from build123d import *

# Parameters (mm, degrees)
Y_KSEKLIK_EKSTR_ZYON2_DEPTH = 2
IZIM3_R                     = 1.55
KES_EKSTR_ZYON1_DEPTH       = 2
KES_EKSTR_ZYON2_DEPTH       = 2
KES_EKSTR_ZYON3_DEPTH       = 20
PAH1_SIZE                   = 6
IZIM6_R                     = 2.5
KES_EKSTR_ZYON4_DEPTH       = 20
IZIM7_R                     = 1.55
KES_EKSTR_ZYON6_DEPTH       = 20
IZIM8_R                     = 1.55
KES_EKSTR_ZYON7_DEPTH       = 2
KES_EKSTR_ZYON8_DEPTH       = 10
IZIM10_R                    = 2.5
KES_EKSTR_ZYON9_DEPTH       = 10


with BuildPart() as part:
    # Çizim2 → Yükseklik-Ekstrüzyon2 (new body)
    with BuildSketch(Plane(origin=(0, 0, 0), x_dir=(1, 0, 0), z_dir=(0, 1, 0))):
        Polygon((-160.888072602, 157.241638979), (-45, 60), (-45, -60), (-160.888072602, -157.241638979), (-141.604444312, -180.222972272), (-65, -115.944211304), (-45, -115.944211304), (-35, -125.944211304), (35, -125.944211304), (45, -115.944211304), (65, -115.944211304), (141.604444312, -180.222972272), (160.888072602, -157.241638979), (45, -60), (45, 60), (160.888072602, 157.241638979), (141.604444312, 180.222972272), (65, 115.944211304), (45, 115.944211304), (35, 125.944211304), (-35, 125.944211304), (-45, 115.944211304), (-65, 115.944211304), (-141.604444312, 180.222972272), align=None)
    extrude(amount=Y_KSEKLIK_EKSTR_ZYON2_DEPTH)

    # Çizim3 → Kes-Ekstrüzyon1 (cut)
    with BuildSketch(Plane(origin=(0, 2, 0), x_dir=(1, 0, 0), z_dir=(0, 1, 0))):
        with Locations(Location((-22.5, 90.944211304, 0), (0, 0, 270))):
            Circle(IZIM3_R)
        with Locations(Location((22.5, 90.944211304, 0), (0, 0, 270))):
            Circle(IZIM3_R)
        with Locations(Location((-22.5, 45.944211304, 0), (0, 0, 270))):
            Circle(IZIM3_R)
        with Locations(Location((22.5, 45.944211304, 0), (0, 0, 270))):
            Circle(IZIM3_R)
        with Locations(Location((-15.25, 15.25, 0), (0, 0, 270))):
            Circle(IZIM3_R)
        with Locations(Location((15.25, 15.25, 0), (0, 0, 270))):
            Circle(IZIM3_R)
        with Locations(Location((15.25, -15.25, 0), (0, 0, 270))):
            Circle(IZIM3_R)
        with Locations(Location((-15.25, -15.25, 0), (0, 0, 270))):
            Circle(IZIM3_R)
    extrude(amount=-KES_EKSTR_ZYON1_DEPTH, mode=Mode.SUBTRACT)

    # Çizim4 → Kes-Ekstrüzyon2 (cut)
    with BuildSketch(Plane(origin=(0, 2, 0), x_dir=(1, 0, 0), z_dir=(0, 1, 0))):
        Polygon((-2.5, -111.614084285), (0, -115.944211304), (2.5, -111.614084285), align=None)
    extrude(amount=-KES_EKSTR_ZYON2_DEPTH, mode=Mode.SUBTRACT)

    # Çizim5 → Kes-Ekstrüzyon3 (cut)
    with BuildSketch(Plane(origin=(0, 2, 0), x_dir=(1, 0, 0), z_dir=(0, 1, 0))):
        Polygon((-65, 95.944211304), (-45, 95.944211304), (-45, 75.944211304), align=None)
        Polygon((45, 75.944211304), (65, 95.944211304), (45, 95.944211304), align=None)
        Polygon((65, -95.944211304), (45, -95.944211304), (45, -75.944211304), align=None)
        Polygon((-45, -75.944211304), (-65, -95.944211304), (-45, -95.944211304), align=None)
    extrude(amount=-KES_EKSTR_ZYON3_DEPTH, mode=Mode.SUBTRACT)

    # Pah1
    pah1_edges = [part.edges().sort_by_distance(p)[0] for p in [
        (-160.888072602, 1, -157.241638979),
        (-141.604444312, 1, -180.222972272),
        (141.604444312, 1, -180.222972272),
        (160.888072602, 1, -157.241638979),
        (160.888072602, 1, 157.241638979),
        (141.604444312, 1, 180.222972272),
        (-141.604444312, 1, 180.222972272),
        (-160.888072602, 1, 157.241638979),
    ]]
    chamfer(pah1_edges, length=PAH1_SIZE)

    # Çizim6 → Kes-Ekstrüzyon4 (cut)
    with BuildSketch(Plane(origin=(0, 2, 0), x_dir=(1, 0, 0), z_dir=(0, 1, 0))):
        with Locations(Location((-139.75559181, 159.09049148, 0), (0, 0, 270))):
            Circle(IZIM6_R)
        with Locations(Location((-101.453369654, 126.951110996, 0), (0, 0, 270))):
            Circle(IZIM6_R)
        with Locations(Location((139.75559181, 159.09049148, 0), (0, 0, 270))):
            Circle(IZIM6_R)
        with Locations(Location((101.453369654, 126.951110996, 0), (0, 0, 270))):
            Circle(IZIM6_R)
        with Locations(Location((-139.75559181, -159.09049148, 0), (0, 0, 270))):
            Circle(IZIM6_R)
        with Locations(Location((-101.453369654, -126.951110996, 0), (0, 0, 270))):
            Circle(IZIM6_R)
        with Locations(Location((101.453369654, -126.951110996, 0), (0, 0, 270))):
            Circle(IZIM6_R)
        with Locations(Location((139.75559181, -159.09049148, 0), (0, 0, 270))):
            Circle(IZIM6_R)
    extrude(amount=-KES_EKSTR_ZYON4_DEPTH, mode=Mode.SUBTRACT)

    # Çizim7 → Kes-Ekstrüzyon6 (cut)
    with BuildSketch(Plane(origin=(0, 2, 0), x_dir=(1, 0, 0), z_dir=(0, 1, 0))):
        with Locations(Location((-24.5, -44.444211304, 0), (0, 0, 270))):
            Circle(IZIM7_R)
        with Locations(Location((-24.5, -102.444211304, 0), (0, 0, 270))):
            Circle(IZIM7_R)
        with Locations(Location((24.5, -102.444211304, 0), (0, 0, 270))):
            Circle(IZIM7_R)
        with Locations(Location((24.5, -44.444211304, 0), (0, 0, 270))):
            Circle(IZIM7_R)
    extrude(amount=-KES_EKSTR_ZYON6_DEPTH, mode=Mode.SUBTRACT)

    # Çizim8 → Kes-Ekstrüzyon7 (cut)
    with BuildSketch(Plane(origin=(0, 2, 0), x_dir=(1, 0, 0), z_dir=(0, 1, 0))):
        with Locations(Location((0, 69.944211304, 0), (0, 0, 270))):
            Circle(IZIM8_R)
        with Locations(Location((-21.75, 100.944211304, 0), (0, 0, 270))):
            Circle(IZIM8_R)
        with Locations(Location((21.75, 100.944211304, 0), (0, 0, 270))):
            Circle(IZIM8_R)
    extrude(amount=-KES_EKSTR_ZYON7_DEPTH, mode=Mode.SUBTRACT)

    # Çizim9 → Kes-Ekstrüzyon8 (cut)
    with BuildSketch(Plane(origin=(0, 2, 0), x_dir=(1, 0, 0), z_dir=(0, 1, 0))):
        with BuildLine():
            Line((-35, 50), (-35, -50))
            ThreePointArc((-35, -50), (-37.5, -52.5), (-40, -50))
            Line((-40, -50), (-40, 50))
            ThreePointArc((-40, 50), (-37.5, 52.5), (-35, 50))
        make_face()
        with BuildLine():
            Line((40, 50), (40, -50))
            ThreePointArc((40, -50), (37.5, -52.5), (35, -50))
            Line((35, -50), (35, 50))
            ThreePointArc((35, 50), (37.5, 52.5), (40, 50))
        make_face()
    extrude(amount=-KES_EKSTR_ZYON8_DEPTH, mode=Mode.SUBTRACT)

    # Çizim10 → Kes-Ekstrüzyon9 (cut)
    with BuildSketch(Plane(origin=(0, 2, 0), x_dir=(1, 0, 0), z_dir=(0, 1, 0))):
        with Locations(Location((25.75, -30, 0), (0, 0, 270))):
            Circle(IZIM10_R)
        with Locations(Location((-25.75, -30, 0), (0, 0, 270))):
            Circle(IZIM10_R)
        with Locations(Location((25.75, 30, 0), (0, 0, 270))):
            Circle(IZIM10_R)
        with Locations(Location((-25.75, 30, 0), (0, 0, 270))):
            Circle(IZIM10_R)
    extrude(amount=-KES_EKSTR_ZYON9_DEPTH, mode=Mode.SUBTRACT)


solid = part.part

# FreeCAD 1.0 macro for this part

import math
import FreeCAD as App
import Part
import Sketcher
from FreeCAD import Vector
Q = App.Units.Quantity


def edges_at(feature, points):
    """Names of the edges that pass closest to the given points."""
    edges = feature.Shape.Edges
    near = lambda p: min(range(len(edges)), key=lambda i: edges[i].distToShape(Part.Vertex(*p))[0])
    return sorted({f"Edge{near(p) + 1}" for p in points})


def add_polygon(sketch, points):
    """Adds a closed chain of lines whose ends are joined by coincident constraints."""
    first, n = sketch.GeometryCount, len(points)
    for a, b in zip(points, points[1:] + points[:1]):
        sketch.addGeometry(Part.LineSegment(App.Vector(*a, 0), App.Vector(*b, 0)), False)
    for i in range(n):
        sketch.addConstraint(Sketcher.Constraint("Coincident", first + i, 2, first + (i + 1) % n, 1))

doc = App.newDocument("Part")
body = doc.addObject("PartDesign::Body", "Body")

# Sketch on XZ plane
sketch1 = doc.addObject("Sketcher::SketchObject", "Sketch")
body.addObject(sketch1)
sketch1.AttachmentSupport = (doc.XZ_Plane, [""])
sketch1.MapMode = "FlatFace"
add_polygon(sketch1, [(-161, -157), (-45, -60), (-45, 60), (-161, 157), (-142, 180), (-65, 116), (-45, 116), (-35, 126), (35, 126), (45, 116), (65, 116), (142, 180), (161, 157), (45, 60), (45, -60), (161, -157), (142, -180), (65, -116), (45, -116), (35, -126), (-35, -126), (-45, -116), (-65, -116), (-142, -180)])  # lines 0-23
sketch1.addConstraint([
    Sketcher.Constraint("Vertical", 1),
    Sketcher.Constraint("Horizontal", 5),
    Sketcher.Constraint("Horizontal", 7),
    Sketcher.Constraint("Horizontal", 9),
    Sketcher.Constraint("Vertical", 13),
    Sketcher.Constraint("Horizontal", 17),
    Sketcher.Constraint("Horizontal", 19),
    Sketcher.Constraint("Horizontal", 21),
    Sketcher.Constraint("Symmetric", 0, 2, 12, 2, -1, 1),
    Sketcher.Constraint("Symmetric", 2, 2, 14, 2, -1, 1),
    Sketcher.Constraint("Symmetric", 3, 2, 15, 2, -1, 1),
    Sketcher.Constraint("Symmetric", 4, 2, 16, 2, -1, 1),
    Sketcher.Constraint("Symmetric", 6, 2, 18, 2, -1, 1),
    Sketcher.Constraint("Symmetric", 8, 2, 20, 2, -1, 1),
    Sketcher.Constraint("Symmetric", 10, 2, 22, 2, -1, 1),
    Sketcher.Constraint("Symmetric", 11, 2, 23, 2, -1, 1),
    Sketcher.Constraint("Symmetric", 5, 2, 8, 2, -2),
    Sketcher.Constraint("Symmetric", 3, 2, 10, 2, -2),
    Sketcher.Constraint("Symmetric", 2, 2, 11, 2, -2),
    Sketcher.Constraint("Perpendicular", 2, 3),
    Sketcher.Constraint("Perpendicular", 3, 4),
    Sketcher.Constraint("Perpendicular", 6, 8),
    Sketcher.Constraint("Parallel", 0, 10),
    Sketcher.Constraint("Perpendicular", 10, 11),
    Sketcher.Constraint("Parallel", 4, 14),
    Sketcher.Constraint("Perpendicular", 8, 18),
    Sketcher.Constraint("Perpendicular", 18, 20),
    Sketcher.Constraint("Parallel", 12, 22),
    Sketcher.Constraint("Vertical", 1, 2, 5, 2),
    Sketcher.Constraint("Vertical", 7, 2, 18, 2),
    Sketcher.Constraint("DistanceX", 5, 1, 5, 2, 20.0),
    Sketcher.Constraint("DistanceX", 7, 1, 7, 2, 70.0),
    Sketcher.Constraint("DistanceY", 1, 1, 1, 2, 120.0),
    Sketcher.Constraint("Angle", 0, Q("40 deg")),
    Sketcher.Constraint("Distance", 3, 30.0),
    Sketcher.Constraint("Distance", 4, 100.0),
    Sketcher.Constraint("DistanceX", 0, 2, -1, 1, 45.0),
])
pad1 = doc.addObject("PartDesign::Pad", "Pad")
body.addObject(pad1)
pad1.Profile = sketch1
pad1.Length = 2
pad1.Reversed = True

# Sketch on XZ plane
sketch2 = doc.addObject("Sketcher::SketchObject", "Sketch001")
body.addObject(sketch2)
sketch2.AttachmentSupport = (doc.XZ_Plane, [""])
sketch2.MapMode = "FlatFace"
sketch2.AttachmentOffset = App.Placement(Vector(0, 0, -2), App.Rotation())
sketch2.addGeometry([
    Part.Circle(Vector(-22.5, -90.9, 0), Vector(0, 0, 1), 1.6),  # 0
    Part.Circle(Vector(22.5, -90.9, 0), Vector(0, 0, 1), 1.6),  # 1
    Part.Circle(Vector(-22.5, -45.9, 0), Vector(0, 0, 1), 1.6),  # 2
    Part.Circle(Vector(22.5, -45.9, 0), Vector(0, 0, 1), 1.6),  # 3
    Part.Circle(Vector(-15.2, -15.2, 0), Vector(0, 0, 1), 1.6),  # 4
    Part.Circle(Vector(15.2, -15.2, 0), Vector(0, 0, 1), 1.6),  # 5
    Part.Circle(Vector(15.2, 15.2, 0), Vector(0, 0, 1), 1.6),  # 6
    Part.Circle(Vector(-15.2, 15.2, 0), Vector(0, 0, 1), 1.6),  # 7
], False)
sketch2.addConstraint([
    Sketcher.Constraint("Equal", 0, 1),
    Sketcher.Constraint("Equal", 1, 2),
    Sketcher.Constraint("Equal", 2, 3),
    Sketcher.Constraint("Equal", 3, 4),
    Sketcher.Constraint("Equal", 4, 5),
    Sketcher.Constraint("Equal", 5, 6),
    Sketcher.Constraint("Equal", 6, 7),
    Sketcher.Constraint("Symmetric", 4, 3, 6, 3, -1, 1),
    Sketcher.Constraint("Symmetric", 5, 3, 7, 3, -1, 1),
    Sketcher.Constraint("Symmetric", 0, 3, 1, 3, -2),
    Sketcher.Constraint("Symmetric", 2, 3, 3, 3, -2),
    Sketcher.Constraint("Symmetric", 4, 3, 5, 3, -2),
    Sketcher.Constraint("Vertical", 0, 3, 2, 3),
    Sketcher.Constraint("Diameter", 0, 3.1),
    Sketcher.Constraint("DistanceX", 0, 3, 1, 3, 45.0),
    Sketcher.Constraint("DistanceY", 0, 3, 2, 3, 45.0),
    Sketcher.Constraint("DistanceX", 4, 3, 5, 3, 30.5),
    Sketcher.Constraint("DistanceY", 5, 3, 6, 3, 30.5),
    Sketcher.Constraint("DistanceY", 0, 3, -1, 1, 90.944211),
])
pocket1 = doc.addObject("PartDesign::Pocket", "Pocket")
body.addObject(pocket1)
pocket1.Profile = sketch2
pocket1.Length = 2
pocket1.Reversed = True

# Sketch on XZ plane
sketch3 = doc.addObject("Sketcher::SketchObject", "Sketch002")
body.addObject(sketch3)
sketch3.AttachmentSupport = (doc.XZ_Plane, [""])
sketch3.MapMode = "FlatFace"
sketch3.AttachmentOffset = App.Placement(Vector(0, 0, -2), App.Rotation())
add_polygon(sketch3, [(-2, 112), (0, 116), (2, 112)])  # lines 0-2
sketch3.addConstraint([
    Sketcher.Constraint("Horizontal", 2),
    Sketcher.Constraint("PointOnObject", 0, 2, -2),
    Sketcher.Constraint("Equal", 0, 1),
    Sketcher.Constraint("DistanceX", 2, 2, 2, 1, 5.0),
    Sketcher.Constraint("Angle", 0, Q("60 deg")),
    Sketcher.Constraint("DistanceY", -1, 1, 0, 2, 115.944211),
])
pocket2 = doc.addObject("PartDesign::Pocket", "Pocket001")
body.addObject(pocket2)
pocket2.Profile = sketch3
pocket2.Length = 2
pocket2.Reversed = True

# Sketch on XZ plane
sketch4 = doc.addObject("Sketcher::SketchObject", "Sketch003")
body.addObject(sketch4)
sketch4.AttachmentSupport = (doc.XZ_Plane, [""])
sketch4.MapMode = "FlatFace"
sketch4.AttachmentOffset = App.Placement(Vector(0, 0, -2), App.Rotation())
add_polygon(sketch4, [(-45, -96), (-65, -96), (-45, -76)])  # lines 0-2
add_polygon(sketch4, [(45, -76), (65, -96), (45, -96)])  # lines 3-5
add_polygon(sketch4, [(45, 96), (65, 96), (45, 76)])  # lines 6-8
add_polygon(sketch4, [(-45, 76), (-65, 96), (-45, 96)])  # lines 9-11
sketch4.addConstraint([
    Sketcher.Constraint("Horizontal", 0),
    Sketcher.Constraint("Vertical", 2),
    Sketcher.Constraint("Horizontal", 4),
    Sketcher.Constraint("Vertical", 5),
    Sketcher.Constraint("Horizontal", 6),
    Sketcher.Constraint("Vertical", 8),
    Sketcher.Constraint("Horizontal", 10),
    Sketcher.Constraint("Vertical", 11),
    Sketcher.Constraint("Symmetric", 0, 2, 6, 2, -1, 1),
    Sketcher.Constraint("Symmetric", 1, 2, 7, 2, -1, 1),
    Sketcher.Constraint("Symmetric", 3, 2, 9, 2, -1, 1),
    Sketcher.Constraint("Symmetric", 5, 2, 11, 2, -1, 1),
    Sketcher.Constraint("Symmetric", 0, 2, 3, 2, -2),
    Sketcher.Constraint("Symmetric", 1, 2, 5, 2, -2),
    Sketcher.Constraint("Perpendicular", 1, 3),
    Sketcher.Constraint("DistanceX", 0, 2, 0, 1, 20.0),
    Sketcher.Constraint("DistanceX", 0, 2, -1, 1, 65.0),
    Sketcher.Constraint("DistanceY", 0, 2, -1, 1, 95.944211),
])
pocket3 = doc.addObject("PartDesign::Pocket", "Pocket002")
body.addObject(pocket3)
pocket3.Profile = sketch4
pocket3.Length = 20
pocket3.Reversed = True
doc.recompute()

chamfer = doc.addObject("PartDesign::Chamfer", "Chamfer")
body.addObject(chamfer)
chamfer.Base = (pocket3, edges_at(pocket3, [
    (-160.888, 1, -157.242),
    (-141.604, 1, -180.223),
    (141.604, 1, -180.223),
    (160.888, 1, -157.242),
    (160.888, 1, 157.242),
    (141.604, 1, 180.223),
    (-141.604, 1, 180.223),
    (-160.888, 1, 157.242),
]))
chamfer.Size = 6

# Sketch on XZ plane
sketch5 = doc.addObject("Sketcher::SketchObject", "Sketch004")
body.addObject(sketch5)
sketch5.AttachmentSupport = (doc.XZ_Plane, [""])
sketch5.MapMode = "FlatFace"
sketch5.AttachmentOffset = App.Placement(Vector(0, 0, -2), App.Rotation())
sketch5.addGeometry([
    Part.Circle(Vector(-139.8, -159.1, 0), Vector(0, 0, 1), 2.5),  # 0
    Part.Circle(Vector(-101.5, -127, 0), Vector(0, 0, 1), 2.5),  # 1
    Part.Circle(Vector(139.8, -159.1, 0), Vector(0, 0, 1), 2.5),  # 2
    Part.Circle(Vector(101.5, -127, 0), Vector(0, 0, 1), 2.5),  # 3
    Part.Circle(Vector(-139.8, 159.1, 0), Vector(0, 0, 1), 2.5),  # 4
    Part.Circle(Vector(-101.5, 127, 0), Vector(0, 0, 1), 2.5),  # 5
    Part.Circle(Vector(101.5, 127, 0), Vector(0, 0, 1), 2.5),  # 6
    Part.Circle(Vector(139.8, 159.1, 0), Vector(0, 0, 1), 2.5),  # 7
], False)
sketch5.addConstraint([
    Sketcher.Constraint("Equal", 0, 1),
    Sketcher.Constraint("Equal", 1, 2),
    Sketcher.Constraint("Equal", 2, 3),
    Sketcher.Constraint("Equal", 3, 4),
    Sketcher.Constraint("Equal", 4, 5),
    Sketcher.Constraint("Equal", 5, 6),
    Sketcher.Constraint("Equal", 6, 7),
    Sketcher.Constraint("Symmetric", 2, 3, 4, 3, -1, 1),
    Sketcher.Constraint("Symmetric", 3, 3, 5, 3, -1, 1),
    Sketcher.Constraint("Symmetric", 1, 3, 6, 3, -1, 1),
    Sketcher.Constraint("Symmetric", 0, 3, 7, 3, -1, 1),
    Sketcher.Constraint("Symmetric", 0, 3, 2, 3, -2),
    Sketcher.Constraint("Symmetric", 1, 3, 3, 3, -2),
    Sketcher.Constraint("Diameter", 0, 5.0),
    Sketcher.Constraint("DistanceX", 0, 3, -1, 1, 139.755592),
    Sketcher.Constraint("DistanceY", 0, 3, -1, 1, 159.090491),
    Sketcher.Constraint("DistanceX", 1, 3, -1, 1, 101.45337),
    Sketcher.Constraint("DistanceY", 1, 3, -1, 1, 126.951111),
])
pocket4 = doc.addObject("PartDesign::Pocket", "Pocket003")
body.addObject(pocket4)
pocket4.Profile = sketch5
pocket4.Length = 20
pocket4.Reversed = True

# Sketch on XZ plane
sketch6 = doc.addObject("Sketcher::SketchObject", "Sketch005")
body.addObject(sketch6)
sketch6.AttachmentSupport = (doc.XZ_Plane, [""])
sketch6.MapMode = "FlatFace"
sketch6.AttachmentOffset = App.Placement(Vector(0, 0, -2), App.Rotation())
sketch6.addGeometry([
    Part.Circle(Vector(-24.5, 44.4, 0), Vector(0, 0, 1), 1.6),
    Part.Circle(Vector(-24.5, 102.4, 0), Vector(0, 0, 1), 1.6),
    Part.Circle(Vector(24.5, 102.4, 0), Vector(0, 0, 1), 1.6),
    Part.Circle(Vector(24.5, 44.4, 0), Vector(0, 0, 1), 1.6),
], False)
sketch6.addConstraint([
    Sketcher.Constraint("Equal", 0, 1),
    Sketcher.Constraint("Equal", 1, 2),
    Sketcher.Constraint("Equal", 2, 3),
    Sketcher.Constraint("Symmetric", 1, 3, 2, 3, -2),
    Sketcher.Constraint("Symmetric", 0, 3, 3, 3, -2),
    Sketcher.Constraint("Vertical", 0, 3, 1, 3),
    Sketcher.Constraint("Diameter", 0, 3.1),
    Sketcher.Constraint("DistanceY", 0, 3, 1, 3, 58.0),
    Sketcher.Constraint("DistanceX", 1, 3, 2, 3, 49.0),
    Sketcher.Constraint("DistanceY", -1, 1, 0, 3, 44.444211),
])
pocket5 = doc.addObject("PartDesign::Pocket", "Pocket004")
body.addObject(pocket5)
pocket5.Profile = sketch6
pocket5.Length = 20
pocket5.Reversed = True

# Sketch on XZ plane
sketch7 = doc.addObject("Sketcher::SketchObject", "Sketch006")
body.addObject(sketch7)
sketch7.AttachmentSupport = (doc.XZ_Plane, [""])
sketch7.MapMode = "FlatFace"
sketch7.AttachmentOffset = App.Placement(Vector(0, 0, -2), App.Rotation())
sketch7.addGeometry([
    Part.Circle(Vector(0, -69.9, 0), Vector(0, 0, 1), 1.6),
    Part.Circle(Vector(-21.8, -100.9, 0), Vector(0, 0, 1), 1.6),
    Part.Circle(Vector(21.8, -100.9, 0), Vector(0, 0, 1), 1.6),
], False)
sketch7.addConstraint([
    Sketcher.Constraint("Equal", 0, 1),
    Sketcher.Constraint("Equal", 1, 2),
    Sketcher.Constraint("Symmetric", 1, 3, 2, 3, -2),
    Sketcher.Constraint("PointOnObject", 0, 3, -2),
    Sketcher.Constraint("Diameter", 0, 3.1),
    Sketcher.Constraint("DistanceY", 1, 3, 0, 3, 31.0),
    Sketcher.Constraint("DistanceX", 1, 3, 2, 3, 43.5),
    Sketcher.Constraint("DistanceY", 0, 3, -1, 1, 69.944211),
])
pocket6 = doc.addObject("PartDesign::Pocket", "Pocket005")
body.addObject(pocket6)
pocket6.Profile = sketch7
pocket6.Length = 2
pocket6.Reversed = True

# Sketch on XZ plane
sketch8 = doc.addObject("Sketcher::SketchObject", "Sketch007")
body.addObject(sketch8)
sketch8.AttachmentSupport = (doc.XZ_Plane, [""])
sketch8.MapMode = "FlatFace"
sketch8.AttachmentOffset = App.Placement(Vector(0, 0, -2), App.Rotation())
sketch8.addGeometry([
    Part.LineSegment(Vector(-35, 50, 0), Vector(-35, -50, 0)),  # 0
    Part.ArcOfCircle(Part.Circle(Vector(-37.5, -50, 0), Vector(0, 0, 1), 2.5), math.radians(180), math.radians(360)),  # 1
    Part.LineSegment(Vector(-40, -50, 0), Vector(-40, 50, 0)),  # 2
    Part.ArcOfCircle(Part.Circle(Vector(-37.5, 50, 0), Vector(0, 0, 1), 2.5), math.radians(0), math.radians(180)),  # 3
    Part.LineSegment(Vector(40, 50, 0), Vector(40, -50, 0)),  # 4
    Part.ArcOfCircle(Part.Circle(Vector(37.5, -50, 0), Vector(0, 0, 1), 2.5), math.radians(180), math.radians(360)),  # 5
    Part.LineSegment(Vector(35, -50, 0), Vector(35, 50, 0)),  # 6
    Part.ArcOfCircle(Part.Circle(Vector(37.5, 50, 0), Vector(0, 0, 1), 2.5), math.radians(0), math.radians(180)),  # 7
], False)
sketch8.addConstraint([
    Sketcher.Constraint("Tangent", 0, 2, 1, 2),
    Sketcher.Constraint("Tangent", 1, 1, 2, 1),
    Sketcher.Constraint("Tangent", 2, 2, 3, 2),
    Sketcher.Constraint("Tangent", 3, 1, 0, 1),
    Sketcher.Constraint("Tangent", 4, 2, 5, 2),
    Sketcher.Constraint("Tangent", 5, 1, 6, 1),
    Sketcher.Constraint("Tangent", 6, 2, 7, 2),
    Sketcher.Constraint("Tangent", 7, 1, 4, 1),
    Sketcher.Constraint("Vertical", 0),
    Sketcher.Constraint("Vertical", 2),
    Sketcher.Constraint("Vertical", 4),
    Sketcher.Constraint("Vertical", 6),
    Sketcher.Constraint("Equal", 3, 5),
    Sketcher.Constraint("Symmetric", 3, 3, 5, 3, -1, 1),
    Sketcher.Constraint("Horizontal", 1, 3, 5, 3),
    Sketcher.Constraint("Horizontal", 3, 3, 7, 3),
    Sketcher.Constraint("Radius", 1, 2.5),
    Sketcher.Constraint("DistanceY", 0, 2, 0, 1, 100.0),
    Sketcher.Constraint("DistanceX", 0, 2, -1, 1, 35.0),
])
pocket7 = doc.addObject("PartDesign::Pocket", "Pocket006")
body.addObject(pocket7)
pocket7.Profile = sketch8
pocket7.Length = 10
pocket7.Reversed = True

# Sketch on XZ plane
sketch9 = doc.addObject("Sketcher::SketchObject", "Sketch008")
body.addObject(sketch9)
sketch9.AttachmentSupport = (doc.XZ_Plane, [""])
sketch9.MapMode = "FlatFace"
sketch9.AttachmentOffset = App.Placement(Vector(0, 0, -2), App.Rotation())
sketch9.addGeometry([
    Part.Circle(Vector(25.8, 30, 0), Vector(0, 0, 1), 2.5),
    Part.Circle(Vector(-25.8, 30, 0), Vector(0, 0, 1), 2.5),
    Part.Circle(Vector(25.8, -30, 0), Vector(0, 0, 1), 2.5),
    Part.Circle(Vector(-25.8, -30, 0), Vector(0, 0, 1), 2.5),
], False)
sketch9.addConstraint([
    Sketcher.Constraint("Equal", 0, 1),
    Sketcher.Constraint("Equal", 1, 2),
    Sketcher.Constraint("Equal", 2, 3),
    Sketcher.Constraint("Symmetric", 1, 3, 2, 3, -1, 1),
    Sketcher.Constraint("Symmetric", 0, 3, 3, 3, -1, 1),
    Sketcher.Constraint("Symmetric", 0, 3, 1, 3, -2),
    Sketcher.Constraint("Diameter", 0, 5.0),
    Sketcher.Constraint("DistanceY", -1, 1, 0, 3, 30.0),
    Sketcher.Constraint("DistanceX", 1, 3, 0, 3, 51.5),
])
pocket8 = doc.addObject("PartDesign::Pocket", "Pocket007")
body.addObject(pocket8)
pocket8.Profile = sketch9
pocket8.Length = 10
pocket8.Reversed = True

doc.recompute()
